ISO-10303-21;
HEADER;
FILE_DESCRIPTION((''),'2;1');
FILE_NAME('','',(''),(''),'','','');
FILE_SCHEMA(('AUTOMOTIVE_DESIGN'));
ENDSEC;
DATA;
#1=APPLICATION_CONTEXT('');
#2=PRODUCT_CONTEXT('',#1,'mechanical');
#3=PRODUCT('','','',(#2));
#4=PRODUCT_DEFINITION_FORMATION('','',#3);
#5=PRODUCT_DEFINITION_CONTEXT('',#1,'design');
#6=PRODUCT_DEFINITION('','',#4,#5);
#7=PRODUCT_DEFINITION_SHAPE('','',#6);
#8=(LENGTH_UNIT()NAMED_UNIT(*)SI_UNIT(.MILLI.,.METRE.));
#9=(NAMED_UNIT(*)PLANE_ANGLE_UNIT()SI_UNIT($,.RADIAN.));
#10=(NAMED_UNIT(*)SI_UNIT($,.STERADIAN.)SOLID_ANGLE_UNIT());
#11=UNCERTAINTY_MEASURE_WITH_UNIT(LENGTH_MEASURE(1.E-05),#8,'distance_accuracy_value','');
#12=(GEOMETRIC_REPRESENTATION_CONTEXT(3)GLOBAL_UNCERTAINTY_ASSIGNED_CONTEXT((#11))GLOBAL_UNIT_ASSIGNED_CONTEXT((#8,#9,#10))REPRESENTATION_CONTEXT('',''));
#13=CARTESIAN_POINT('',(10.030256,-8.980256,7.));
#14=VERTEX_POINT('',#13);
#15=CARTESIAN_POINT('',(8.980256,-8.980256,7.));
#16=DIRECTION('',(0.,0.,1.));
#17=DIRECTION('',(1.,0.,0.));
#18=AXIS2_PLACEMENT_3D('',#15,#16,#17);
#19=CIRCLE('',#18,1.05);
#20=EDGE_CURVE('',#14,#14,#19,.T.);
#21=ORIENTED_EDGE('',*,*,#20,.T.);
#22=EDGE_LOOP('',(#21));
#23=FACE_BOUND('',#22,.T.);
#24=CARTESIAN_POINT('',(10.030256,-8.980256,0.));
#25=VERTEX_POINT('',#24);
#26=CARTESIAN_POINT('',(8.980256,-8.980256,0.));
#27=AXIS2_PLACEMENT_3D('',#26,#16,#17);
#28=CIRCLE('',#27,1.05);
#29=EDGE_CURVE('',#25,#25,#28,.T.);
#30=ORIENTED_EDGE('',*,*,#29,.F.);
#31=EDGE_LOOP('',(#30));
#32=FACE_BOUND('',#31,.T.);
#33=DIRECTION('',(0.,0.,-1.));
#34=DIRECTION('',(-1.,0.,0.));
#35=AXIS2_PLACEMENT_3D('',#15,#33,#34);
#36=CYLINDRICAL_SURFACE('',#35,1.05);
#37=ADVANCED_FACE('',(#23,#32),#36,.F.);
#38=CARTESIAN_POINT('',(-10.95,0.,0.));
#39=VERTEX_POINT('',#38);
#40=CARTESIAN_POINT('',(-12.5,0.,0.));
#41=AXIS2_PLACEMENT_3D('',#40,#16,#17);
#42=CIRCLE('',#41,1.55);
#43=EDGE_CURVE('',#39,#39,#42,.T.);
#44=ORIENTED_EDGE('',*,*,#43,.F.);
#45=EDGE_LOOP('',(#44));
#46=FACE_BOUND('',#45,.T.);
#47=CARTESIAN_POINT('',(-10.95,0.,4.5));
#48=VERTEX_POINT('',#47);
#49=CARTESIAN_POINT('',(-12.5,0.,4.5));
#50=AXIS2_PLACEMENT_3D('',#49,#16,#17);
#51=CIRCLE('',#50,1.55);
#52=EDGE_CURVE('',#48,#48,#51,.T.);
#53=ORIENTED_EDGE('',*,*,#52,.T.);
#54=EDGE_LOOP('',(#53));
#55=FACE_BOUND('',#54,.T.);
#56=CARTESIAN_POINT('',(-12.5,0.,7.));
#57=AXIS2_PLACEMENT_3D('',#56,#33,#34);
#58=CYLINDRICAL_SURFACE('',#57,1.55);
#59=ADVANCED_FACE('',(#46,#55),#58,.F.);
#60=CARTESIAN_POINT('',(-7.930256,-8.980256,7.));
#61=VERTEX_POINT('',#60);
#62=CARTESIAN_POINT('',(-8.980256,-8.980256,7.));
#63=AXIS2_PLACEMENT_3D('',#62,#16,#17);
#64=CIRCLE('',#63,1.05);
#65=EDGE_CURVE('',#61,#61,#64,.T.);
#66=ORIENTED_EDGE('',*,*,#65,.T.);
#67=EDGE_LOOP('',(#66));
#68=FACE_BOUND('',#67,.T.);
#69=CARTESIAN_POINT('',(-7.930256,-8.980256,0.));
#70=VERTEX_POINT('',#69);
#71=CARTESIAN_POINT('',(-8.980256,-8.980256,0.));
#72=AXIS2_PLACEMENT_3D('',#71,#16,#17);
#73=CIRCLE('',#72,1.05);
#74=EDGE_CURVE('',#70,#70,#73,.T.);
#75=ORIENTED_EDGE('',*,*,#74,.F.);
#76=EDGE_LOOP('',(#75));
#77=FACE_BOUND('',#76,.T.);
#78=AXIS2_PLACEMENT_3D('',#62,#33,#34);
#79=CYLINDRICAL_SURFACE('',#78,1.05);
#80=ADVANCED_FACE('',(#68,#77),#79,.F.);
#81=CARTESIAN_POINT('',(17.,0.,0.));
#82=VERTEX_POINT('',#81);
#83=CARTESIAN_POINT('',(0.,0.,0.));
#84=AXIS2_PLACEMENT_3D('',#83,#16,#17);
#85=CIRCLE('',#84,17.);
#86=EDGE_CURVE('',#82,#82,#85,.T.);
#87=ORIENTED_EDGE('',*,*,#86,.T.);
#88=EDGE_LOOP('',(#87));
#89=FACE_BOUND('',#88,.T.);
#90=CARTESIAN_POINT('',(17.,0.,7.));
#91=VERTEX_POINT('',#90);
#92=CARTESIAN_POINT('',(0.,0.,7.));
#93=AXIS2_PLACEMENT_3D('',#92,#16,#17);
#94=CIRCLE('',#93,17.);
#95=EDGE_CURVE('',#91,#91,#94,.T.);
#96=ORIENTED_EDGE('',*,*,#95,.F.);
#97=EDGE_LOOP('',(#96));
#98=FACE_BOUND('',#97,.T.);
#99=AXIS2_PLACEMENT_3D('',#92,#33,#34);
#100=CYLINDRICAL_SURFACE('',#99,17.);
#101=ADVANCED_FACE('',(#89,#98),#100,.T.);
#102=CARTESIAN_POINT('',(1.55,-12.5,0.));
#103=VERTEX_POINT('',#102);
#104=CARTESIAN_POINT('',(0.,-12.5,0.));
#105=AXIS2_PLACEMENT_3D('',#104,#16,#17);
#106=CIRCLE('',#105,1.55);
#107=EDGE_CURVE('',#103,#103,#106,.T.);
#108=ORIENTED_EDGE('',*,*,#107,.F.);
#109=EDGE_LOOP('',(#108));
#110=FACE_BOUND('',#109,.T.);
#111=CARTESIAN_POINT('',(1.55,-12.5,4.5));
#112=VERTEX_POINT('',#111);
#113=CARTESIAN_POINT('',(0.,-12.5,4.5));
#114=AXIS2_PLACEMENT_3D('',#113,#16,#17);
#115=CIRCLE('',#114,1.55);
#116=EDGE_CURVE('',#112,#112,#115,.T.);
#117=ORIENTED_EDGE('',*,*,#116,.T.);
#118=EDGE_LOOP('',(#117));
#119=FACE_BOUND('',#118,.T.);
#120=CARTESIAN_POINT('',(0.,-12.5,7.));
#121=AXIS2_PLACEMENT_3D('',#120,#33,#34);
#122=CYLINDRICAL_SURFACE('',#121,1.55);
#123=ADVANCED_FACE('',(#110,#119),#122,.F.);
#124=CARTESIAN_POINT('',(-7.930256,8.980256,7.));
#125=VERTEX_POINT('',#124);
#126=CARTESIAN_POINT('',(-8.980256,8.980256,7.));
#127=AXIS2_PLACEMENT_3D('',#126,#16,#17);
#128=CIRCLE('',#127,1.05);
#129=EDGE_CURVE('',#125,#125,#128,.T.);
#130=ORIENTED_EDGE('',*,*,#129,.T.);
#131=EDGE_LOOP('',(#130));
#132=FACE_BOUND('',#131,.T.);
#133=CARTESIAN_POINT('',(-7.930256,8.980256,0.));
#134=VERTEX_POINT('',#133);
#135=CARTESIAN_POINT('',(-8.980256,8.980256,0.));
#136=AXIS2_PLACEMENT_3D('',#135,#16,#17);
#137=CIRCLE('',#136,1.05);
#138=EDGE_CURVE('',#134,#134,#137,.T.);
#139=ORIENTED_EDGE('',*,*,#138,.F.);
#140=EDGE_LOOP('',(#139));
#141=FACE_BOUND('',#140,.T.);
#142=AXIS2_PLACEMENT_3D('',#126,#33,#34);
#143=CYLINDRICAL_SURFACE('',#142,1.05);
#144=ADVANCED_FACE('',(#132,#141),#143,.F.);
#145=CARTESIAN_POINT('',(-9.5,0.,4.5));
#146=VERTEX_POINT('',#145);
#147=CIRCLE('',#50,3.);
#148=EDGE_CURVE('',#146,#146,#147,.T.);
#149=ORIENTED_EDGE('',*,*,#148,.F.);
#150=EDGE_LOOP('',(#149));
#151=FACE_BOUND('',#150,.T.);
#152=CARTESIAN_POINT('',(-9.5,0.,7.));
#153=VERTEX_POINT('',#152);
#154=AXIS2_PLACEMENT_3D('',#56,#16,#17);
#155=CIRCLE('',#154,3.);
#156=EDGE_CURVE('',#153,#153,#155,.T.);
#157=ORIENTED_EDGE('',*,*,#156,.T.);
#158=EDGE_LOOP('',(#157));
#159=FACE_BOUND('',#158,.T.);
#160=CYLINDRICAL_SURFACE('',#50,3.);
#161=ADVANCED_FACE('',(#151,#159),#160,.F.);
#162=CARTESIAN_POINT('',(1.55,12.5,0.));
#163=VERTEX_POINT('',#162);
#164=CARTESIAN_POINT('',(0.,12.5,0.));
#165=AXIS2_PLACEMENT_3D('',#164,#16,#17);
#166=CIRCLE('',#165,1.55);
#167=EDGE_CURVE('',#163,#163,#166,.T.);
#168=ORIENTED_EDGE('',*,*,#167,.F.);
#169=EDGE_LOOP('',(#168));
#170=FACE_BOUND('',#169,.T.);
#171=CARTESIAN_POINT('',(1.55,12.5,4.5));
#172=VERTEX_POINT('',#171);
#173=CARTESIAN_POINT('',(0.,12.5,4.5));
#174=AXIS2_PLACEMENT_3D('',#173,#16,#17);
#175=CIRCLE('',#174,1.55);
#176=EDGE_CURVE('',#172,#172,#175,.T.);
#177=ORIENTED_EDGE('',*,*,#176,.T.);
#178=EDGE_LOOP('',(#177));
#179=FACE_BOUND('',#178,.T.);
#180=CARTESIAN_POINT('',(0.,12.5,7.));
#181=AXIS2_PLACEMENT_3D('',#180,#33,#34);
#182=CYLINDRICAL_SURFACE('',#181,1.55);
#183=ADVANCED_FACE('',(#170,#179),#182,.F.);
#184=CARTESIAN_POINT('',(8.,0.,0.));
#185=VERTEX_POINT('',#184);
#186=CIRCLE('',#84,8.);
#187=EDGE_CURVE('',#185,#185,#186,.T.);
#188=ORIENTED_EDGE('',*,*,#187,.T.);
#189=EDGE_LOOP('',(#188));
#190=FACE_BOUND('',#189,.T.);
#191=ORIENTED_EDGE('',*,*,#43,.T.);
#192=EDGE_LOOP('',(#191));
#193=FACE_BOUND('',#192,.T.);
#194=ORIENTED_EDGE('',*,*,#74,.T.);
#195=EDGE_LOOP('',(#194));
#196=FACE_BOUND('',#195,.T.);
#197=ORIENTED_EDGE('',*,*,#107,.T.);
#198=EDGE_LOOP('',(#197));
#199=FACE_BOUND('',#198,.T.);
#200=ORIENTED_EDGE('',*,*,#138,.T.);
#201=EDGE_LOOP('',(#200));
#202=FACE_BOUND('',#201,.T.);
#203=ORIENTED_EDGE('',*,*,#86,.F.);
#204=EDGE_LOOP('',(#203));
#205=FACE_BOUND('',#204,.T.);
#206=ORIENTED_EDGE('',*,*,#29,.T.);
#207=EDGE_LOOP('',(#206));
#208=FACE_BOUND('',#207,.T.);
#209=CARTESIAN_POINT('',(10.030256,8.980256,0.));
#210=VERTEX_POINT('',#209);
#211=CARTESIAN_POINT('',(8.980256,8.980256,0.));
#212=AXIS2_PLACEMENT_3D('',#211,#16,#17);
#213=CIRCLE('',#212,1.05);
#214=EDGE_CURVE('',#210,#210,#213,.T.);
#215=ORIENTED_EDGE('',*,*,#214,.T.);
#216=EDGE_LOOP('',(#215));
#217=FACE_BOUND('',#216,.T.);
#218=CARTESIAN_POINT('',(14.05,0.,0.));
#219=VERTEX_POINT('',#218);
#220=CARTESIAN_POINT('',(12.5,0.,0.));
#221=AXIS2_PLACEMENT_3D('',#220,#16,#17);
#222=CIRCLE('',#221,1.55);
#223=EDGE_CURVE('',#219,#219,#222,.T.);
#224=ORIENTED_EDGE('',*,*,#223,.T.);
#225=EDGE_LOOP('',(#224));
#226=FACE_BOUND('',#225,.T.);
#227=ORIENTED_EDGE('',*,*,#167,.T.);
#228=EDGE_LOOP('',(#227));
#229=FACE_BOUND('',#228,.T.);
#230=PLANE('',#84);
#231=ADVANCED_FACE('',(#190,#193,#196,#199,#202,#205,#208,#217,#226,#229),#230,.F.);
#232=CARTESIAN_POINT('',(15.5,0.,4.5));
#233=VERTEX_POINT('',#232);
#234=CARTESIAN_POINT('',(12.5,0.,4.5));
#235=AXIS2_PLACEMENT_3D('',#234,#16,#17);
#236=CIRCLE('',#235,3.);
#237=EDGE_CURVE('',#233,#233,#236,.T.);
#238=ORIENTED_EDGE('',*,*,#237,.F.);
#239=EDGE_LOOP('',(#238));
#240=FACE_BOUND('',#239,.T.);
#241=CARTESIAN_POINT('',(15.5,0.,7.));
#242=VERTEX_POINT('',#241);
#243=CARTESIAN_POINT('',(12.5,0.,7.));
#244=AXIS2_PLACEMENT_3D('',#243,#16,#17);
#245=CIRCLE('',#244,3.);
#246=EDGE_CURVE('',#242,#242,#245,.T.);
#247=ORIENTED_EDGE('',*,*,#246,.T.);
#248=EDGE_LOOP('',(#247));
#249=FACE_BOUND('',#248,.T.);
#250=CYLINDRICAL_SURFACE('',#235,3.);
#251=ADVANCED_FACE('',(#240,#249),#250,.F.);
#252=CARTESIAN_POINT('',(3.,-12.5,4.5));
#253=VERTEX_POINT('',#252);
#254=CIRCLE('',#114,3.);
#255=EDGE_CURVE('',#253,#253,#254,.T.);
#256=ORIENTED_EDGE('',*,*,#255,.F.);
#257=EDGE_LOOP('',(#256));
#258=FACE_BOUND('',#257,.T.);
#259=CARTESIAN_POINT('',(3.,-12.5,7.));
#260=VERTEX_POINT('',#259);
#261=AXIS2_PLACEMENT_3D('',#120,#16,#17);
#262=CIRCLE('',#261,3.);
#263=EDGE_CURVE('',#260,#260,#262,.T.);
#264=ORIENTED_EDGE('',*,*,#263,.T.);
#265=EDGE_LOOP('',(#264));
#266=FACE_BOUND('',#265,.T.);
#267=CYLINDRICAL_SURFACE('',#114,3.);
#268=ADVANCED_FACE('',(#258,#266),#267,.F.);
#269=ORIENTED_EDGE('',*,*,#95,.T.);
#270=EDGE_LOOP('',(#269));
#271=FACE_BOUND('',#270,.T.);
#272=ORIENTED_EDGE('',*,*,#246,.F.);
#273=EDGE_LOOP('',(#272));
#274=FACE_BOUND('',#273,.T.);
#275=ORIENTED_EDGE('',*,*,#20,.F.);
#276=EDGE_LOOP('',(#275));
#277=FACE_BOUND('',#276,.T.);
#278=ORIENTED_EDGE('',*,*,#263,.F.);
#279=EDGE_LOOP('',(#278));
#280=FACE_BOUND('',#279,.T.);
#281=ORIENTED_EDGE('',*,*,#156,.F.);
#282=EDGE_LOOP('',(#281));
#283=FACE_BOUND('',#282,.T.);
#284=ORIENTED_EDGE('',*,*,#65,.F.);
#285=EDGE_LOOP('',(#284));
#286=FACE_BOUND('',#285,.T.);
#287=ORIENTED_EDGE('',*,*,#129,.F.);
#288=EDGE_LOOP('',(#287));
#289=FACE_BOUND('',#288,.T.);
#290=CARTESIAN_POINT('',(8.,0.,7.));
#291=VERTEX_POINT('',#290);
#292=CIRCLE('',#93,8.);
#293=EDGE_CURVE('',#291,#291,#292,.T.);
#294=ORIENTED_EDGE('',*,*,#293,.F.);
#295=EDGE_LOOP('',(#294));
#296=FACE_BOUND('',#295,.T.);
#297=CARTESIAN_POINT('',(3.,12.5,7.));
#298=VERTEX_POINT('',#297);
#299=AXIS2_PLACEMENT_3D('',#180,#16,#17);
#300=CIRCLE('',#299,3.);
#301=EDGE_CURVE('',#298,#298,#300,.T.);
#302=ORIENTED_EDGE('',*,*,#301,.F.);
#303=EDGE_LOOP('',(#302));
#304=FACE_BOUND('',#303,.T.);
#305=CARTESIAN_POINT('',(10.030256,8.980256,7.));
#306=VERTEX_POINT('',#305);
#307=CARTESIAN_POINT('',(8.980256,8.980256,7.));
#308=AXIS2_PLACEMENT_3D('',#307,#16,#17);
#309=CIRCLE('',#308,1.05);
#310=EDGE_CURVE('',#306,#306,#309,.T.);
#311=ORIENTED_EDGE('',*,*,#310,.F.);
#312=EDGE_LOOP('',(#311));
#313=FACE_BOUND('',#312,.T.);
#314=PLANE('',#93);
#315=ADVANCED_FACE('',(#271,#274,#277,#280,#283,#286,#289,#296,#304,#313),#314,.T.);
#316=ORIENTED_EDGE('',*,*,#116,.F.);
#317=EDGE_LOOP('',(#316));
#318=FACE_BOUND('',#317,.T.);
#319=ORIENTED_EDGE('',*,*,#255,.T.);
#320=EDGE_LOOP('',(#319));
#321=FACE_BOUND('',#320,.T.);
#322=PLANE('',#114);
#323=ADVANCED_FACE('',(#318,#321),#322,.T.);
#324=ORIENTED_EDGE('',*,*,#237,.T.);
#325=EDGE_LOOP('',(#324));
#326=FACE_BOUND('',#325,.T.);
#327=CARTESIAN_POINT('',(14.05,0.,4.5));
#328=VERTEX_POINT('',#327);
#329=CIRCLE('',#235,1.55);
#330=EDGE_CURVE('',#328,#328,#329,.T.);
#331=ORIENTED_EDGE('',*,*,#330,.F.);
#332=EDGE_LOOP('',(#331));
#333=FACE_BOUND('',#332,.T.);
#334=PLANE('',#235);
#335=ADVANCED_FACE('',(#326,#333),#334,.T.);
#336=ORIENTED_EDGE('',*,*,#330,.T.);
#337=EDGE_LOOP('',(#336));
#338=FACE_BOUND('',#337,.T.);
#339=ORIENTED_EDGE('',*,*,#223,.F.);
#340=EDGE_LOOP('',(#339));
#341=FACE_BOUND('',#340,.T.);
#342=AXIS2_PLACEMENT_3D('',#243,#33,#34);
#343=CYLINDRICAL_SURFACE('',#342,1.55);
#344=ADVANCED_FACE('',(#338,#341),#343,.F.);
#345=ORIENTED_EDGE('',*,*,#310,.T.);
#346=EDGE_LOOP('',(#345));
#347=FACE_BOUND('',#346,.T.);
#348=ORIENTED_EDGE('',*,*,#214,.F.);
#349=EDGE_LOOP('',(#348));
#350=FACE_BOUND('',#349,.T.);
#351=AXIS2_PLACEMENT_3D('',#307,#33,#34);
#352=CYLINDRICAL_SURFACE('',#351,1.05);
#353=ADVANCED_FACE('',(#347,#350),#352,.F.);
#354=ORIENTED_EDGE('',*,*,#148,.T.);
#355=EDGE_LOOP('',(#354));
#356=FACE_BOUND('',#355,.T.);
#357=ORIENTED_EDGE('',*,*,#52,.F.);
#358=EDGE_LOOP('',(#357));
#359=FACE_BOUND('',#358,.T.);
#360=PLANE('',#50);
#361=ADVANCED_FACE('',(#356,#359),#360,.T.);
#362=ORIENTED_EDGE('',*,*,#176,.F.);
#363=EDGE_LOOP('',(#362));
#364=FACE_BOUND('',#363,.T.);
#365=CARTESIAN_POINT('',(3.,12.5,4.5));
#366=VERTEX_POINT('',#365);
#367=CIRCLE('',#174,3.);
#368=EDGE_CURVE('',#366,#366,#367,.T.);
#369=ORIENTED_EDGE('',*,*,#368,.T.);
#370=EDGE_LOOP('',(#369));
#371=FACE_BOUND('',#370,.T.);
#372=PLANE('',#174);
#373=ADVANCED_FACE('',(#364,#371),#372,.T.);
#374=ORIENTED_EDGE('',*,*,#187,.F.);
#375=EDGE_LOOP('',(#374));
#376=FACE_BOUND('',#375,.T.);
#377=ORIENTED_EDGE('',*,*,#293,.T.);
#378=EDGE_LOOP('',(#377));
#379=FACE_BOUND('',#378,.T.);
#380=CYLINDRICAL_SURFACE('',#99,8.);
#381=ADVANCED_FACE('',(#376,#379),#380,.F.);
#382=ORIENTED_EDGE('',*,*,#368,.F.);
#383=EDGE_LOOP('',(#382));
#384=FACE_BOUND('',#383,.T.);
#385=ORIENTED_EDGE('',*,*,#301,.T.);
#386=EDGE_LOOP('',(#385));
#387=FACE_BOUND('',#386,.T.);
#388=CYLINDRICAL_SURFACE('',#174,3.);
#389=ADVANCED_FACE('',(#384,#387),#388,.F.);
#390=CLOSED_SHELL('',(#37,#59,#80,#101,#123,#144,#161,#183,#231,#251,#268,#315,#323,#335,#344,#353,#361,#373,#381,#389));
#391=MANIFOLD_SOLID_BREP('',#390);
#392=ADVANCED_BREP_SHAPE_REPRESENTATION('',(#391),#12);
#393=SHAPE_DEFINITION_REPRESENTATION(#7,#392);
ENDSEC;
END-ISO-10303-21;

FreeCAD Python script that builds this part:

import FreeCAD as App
import Part
import Sketcher
from FreeCAD import Vector
Q = App.Units.Quantity

doc = App.newDocument("Part")
params = doc.addObject("Spreadsheet::Sheet", "Params")
for row, (alias, value) in enumerate([
    ("sketch1_diameter", "34 mm"),
    ("sketch1_diameter2", "16 mm"),
    ("sketch1_diameter3", "2.1 mm"),
    ("sketch1_diameter4", "3.1 mm"),
    ("pad1_length", "7 mm"),
    ("sketch2_diameter", "6 mm"),
    ("pocket1_length", "2.5 mm"),
], start=1):
    params.set(f"A{row}", alias)
    params.set(f"B{row}", "=" + value)
    params.setAlias(f"B{row}", alias)

body = doc.addObject("PartDesign::Body", "Body")

# Sketch on XY plane
sketch1 = doc.addObject("Sketcher::SketchObject", "Sketch")
body.addObject(sketch1)
sketch1.AttachmentSupport = (doc.XY_Plane, [""])
sketch1.MapMode = "FlatFace"
sketch1.addGeometry([
    Part.Circle(Vector(0, 0, 0), Vector(0, 0, 1), 17),  # 0
    Part.Circle(Vector(-9, -9, 0), Vector(0, 0, 1), 1.1),  # 1
    Part.Circle(Vector(0, -12.5, 0), Vector(0, 0, 1), 1.6),  # 2
    Part.Circle(Vector(9, -9, 0), Vector(0, 0, 1), 1.1),  # 3
    Part.Circle(Vector(-12.5, 0, 0), Vector(0, 0, 1), 1.6),  # 4
    Part.Circle(Vector(-9, 9, 0), Vector(0, 0, 1), 1.1),  # 5
    Part.Circle(Vector(0, 0, 0), Vector(0, 0, 1), 8),  # 6
    Part.Circle(Vector(12.5, 0, 0), Vector(0, 0, 1), 1.6),  # 7
    Part.Circle(Vector(0, 12.5, 0), Vector(0, 0, 1), 1.6),  # 8
    Part.Circle(Vector(9, 9, 0), Vector(0, 0, 1), 1.1),  # 9
], False)
sketch1.addConstraint([
    Sketcher.Constraint("Coincident", 0, 3, -1, 1),
    Sketcher.Constraint("Coincident", 6, 3, -1, 1),
    Sketcher.Constraint("Equal", 1, 3),
    Sketcher.Constraint("Equal", 2, 4),
    Sketcher.Constraint("Equal", 3, 5),
    Sketcher.Constraint("Equal", 4, 7),
    Sketcher.Constraint("Equal", 7, 8),
    Sketcher.Constraint("Equal", 5, 9),
    Sketcher.Constraint("Symmetric", 3, 3, 5, 3, -1, 1),
    Sketcher.Constraint("Symmetric", 4, 3, 7, 3, -1, 1),
    Sketcher.Constraint("Symmetric", 2, 3, 8, 3, -1, 1),
    Sketcher.Constraint("Symmetric", 1, 3, 9, 3, -1, 1),
    Sketcher.Constraint("Symmetric", 1, 3, 3, 3, -2),
    Sketcher.Constraint("PointOnObject", 2, 3, -2),
    Sketcher.Constraint("PointOnObject", 4, 3, -1),
    Sketcher.Constraint("Diameter", 0, Q("34 mm")),
    Sketcher.Constraint("Diameter", 6, Q("16 mm")),
    Sketcher.Constraint("Diameter", 1, Q("2.1 mm")),
    Sketcher.Constraint("Diameter", 2, Q("3.1 mm")),
    Sketcher.Constraint("DistanceY", 2, 3, -1, 1, Q("12.5 mm")),
    Sketcher.Constraint("DistanceX", 4, 3, -1, 1, Q("12.5 mm")),
    Sketcher.Constraint("DistanceX", 1, 3, -1, 1, Q("8.980256 mm")),
    Sketcher.Constraint("DistanceY", 1, 3, -1, 1, Q("8.980256 mm")),
])
sketch1.setExpression("Constraints[15]", "Params.sketch1_diameter")
sketch1.setExpression("Constraints[16]", "Params.sketch1_diameter2")
sketch1.setExpression("Constraints[17]", "Params.sketch1_diameter3")
sketch1.setExpression("Constraints[18]", "Params.sketch1_diameter4")
pad1 = doc.addObject("PartDesign::Pad", "Pad")
body.addObject(pad1)
pad1.Profile = sketch1
pad1.setExpression("Length", "Params.pad1_length")

# Sketch on XY plane
sketch2 = doc.addObject("Sketcher::SketchObject", "Sketch001")
body.addObject(sketch2)
sketch2.AttachmentSupport = (doc.XY_Plane, [""])
sketch2.MapMode = "FlatFace"
sketch2.AttachmentOffset = App.Placement(Vector(0, 0, 7), App.Rotation())
sketch2.addGeometry([
    Part.Circle(Vector(0, 12.5, 0), Vector(0, 0, 1), 3),
    Part.Circle(Vector(12.5, 0, 0), Vector(0, 0, 1), 3),
    Part.Circle(Vector(0, -12.5, 0), Vector(0, 0, 1), 3),
    Part.Circle(Vector(-12.5, 0, 0), Vector(0, 0, 1), 3),
], False)
sketch2.addConstraint([
    Sketcher.Constraint("Equal", 0, 1),
    Sketcher.Constraint("Equal", 1, 2),
    Sketcher.Constraint("Equal", 2, 3),
    Sketcher.Constraint("Symmetric", 0, 3, 2, 3, -1, 1),
    Sketcher.Constraint("Symmetric", 1, 3, 3, 3, -1, 1),
    Sketcher.Constraint("PointOnObject", 0, 3, -2),
    Sketcher.Constraint("PointOnObject", 1, 3, -1),
    Sketcher.Constraint("Diameter", 0, Q("6 mm")),
    Sketcher.Constraint("DistanceY", 2, 3, 0, 3, Q("25 mm")),
    Sketcher.Constraint("DistanceX", 3, 3, 1, 3, Q("25 mm")),
])
sketch2.setExpression("Constraints[7]", "Params.sketch2_diameter")
pocket1 = doc.addObject("PartDesign::Pocket", "Pocket")
body.addObject(pocket1)
pocket1.Profile = sketch2
pocket1.setExpression("Length", "Params.pocket1_length")

doc.recompute()
